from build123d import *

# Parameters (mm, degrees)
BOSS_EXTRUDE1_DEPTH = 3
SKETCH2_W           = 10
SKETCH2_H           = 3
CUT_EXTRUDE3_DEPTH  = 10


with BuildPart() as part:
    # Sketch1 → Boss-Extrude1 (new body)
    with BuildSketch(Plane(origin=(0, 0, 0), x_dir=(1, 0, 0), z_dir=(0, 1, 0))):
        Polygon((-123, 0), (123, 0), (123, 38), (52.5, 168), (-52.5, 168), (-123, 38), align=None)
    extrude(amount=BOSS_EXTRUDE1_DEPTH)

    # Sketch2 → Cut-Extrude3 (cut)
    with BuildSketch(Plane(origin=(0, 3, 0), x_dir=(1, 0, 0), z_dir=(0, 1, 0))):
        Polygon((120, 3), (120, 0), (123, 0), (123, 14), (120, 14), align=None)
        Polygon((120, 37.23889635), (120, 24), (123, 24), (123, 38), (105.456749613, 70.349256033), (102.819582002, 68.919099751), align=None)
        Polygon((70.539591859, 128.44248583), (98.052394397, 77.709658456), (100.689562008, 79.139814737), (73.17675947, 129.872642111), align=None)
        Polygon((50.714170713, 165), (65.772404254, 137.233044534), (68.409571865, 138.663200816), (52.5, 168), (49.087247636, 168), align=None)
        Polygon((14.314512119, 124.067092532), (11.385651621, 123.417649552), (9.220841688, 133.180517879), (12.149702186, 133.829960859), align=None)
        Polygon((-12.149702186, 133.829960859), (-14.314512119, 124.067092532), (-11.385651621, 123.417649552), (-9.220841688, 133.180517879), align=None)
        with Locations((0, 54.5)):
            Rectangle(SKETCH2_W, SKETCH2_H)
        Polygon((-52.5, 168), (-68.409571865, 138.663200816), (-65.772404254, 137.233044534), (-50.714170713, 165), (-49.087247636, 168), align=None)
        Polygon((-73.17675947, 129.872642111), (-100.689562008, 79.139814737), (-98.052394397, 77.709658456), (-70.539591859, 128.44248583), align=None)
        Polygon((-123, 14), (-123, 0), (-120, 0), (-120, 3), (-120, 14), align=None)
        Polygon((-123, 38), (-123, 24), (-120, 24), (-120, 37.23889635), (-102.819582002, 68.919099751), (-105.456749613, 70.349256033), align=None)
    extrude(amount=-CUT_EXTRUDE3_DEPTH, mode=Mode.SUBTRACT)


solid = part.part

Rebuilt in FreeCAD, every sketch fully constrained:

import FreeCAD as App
import Part
import Sketcher


def add_polygon(sketch, points):
    """Adds a closed chain of lines whose ends are joined by coincident constraints."""
    first, n = sketch.GeometryCount, len(points)
    for a, b in zip(points, points[1:] + points[:1]):
        sketch.addGeometry(Part.LineSegment(App.Vector(*a, 0), App.Vector(*b, 0)), False)
    for i in range(n):
        sketch.addConstraint(Sketcher.Constraint("Coincident", first + i, 2, first + (i + 1) % n, 1))

doc = App.newDocument("Part")
body = doc.addObject("PartDesign::Body", "Body")

# Sketch on XZ plane
sketch1 = body.newObject("Sketcher::SketchObject", "Sketch")
sketch1.AttachmentSupport = (doc.getObject("XZ_Plane"), [""])
sketch1.MapMode = "FlatFace"
add_polygon(sketch1, [(-123, 0), (123, 0), (123, -38), (52, -168), (-52, -168), (-123, -38)])  # lines 0-5
sketch1.addConstraint(Sketcher.Constraint("Horizontal", 0))
sketch1.addConstraint(Sketcher.Constraint("Vertical", 1))
sketch1.addConstraint(Sketcher.Constraint("Horizontal", 3))
sketch1.addConstraint(Sketcher.Constraint("Vertical", 5))
sketch1.addConstraint(Sketcher.Constraint("Symmetric", 0, 2, 5, 2, -1, 1))
sketch1.addConstraint(Sketcher.Constraint("Horizontal", 1, 2, 4, 2))
sketch1.addConstraint(Sketcher.Constraint("Equal", 2, 4))
sketch1.addConstraint(Sketcher.Constraint("DistanceX", 0, 1, 0, 2, 246.0))
sketch1.addConstraint(Sketcher.Constraint("DistanceX", 3, 2, 3, 1, 105.0))
sketch1.addConstraint(Sketcher.Constraint("DistanceY", 1, 2, 1, 1, 38.0))
sketch1.addConstraint(Sketcher.Constraint("DistanceY", 2, 2, -1, 1, 168.0))
pad1 = body.newObject("PartDesign::Pad", "Pad")
pad1.Profile = sketch1
pad1.Length = 3
pad1.Reversed = True

# Sketch on XZ plane
sketch2 = body.newObject("Sketcher::SketchObject", "Sketch001")
sketch2.AttachmentSupport = (doc.getObject("XZ_Plane"), [""])
sketch2.MapMode = "FlatFace"
sketch2.AttachmentOffset = App.Placement(App.Vector(0, 0, -3), App.Rotation())
add_polygon(sketch2, [(120, 0), (123, 0), (123, -14), (120, -14)])  # lines 0-3
add_polygon(sketch2, [(120, -37.2), (120, -24), (123, -24), (123, -38), (105.5, -70.3), (102.8, -68.9)])  # lines 4-9
add_polygon(sketch2, [(70.5, -128.4), (98.1, -77.7), (100.7, -79.1), (73.2, -129.9)])  # lines 10-13
add_polygon(sketch2, [(50.7, -165), (65.8, -137.2), (68.4, -138.7), (52.5, -168), (49.1, -168)])  # lines 14-18
add_polygon(sketch2, [(11.4, -123.4), (14.3, -124.1), (12.1, -133.8), (9.2, -133.2)])  # lines 19-22
add_polygon(sketch2, [(-12.1, -133.8), (-14.3, -124.1), (-11.4, -123.4), (-9.2, -133.2)])  # lines 23-26
add_polygon(sketch2, [(-5, -56), (-5, -53), (5, -53), (5, -56)])  # lines 27-30
add_polygon(sketch2, [(-52.5, -168), (-68.4, -138.7), (-65.8, -137.2), (-50.7, -165), (-49.1, -168)])  # lines 31-35
add_polygon(sketch2, [(-73.2, -129.9), (-100.7, -79.1), (-98.1, -77.7), (-70.5, -128.4)])  # lines 36-39
add_polygon(sketch2, [(-123, -14), (-123, 0), (-120, 0), (-120, -14)])  # lines 40-43
add_polygon(sketch2, [(-123, -38), (-123, -24), (-120, -24), (-120, -37.2), (-102.8, -68.9), (-105.5, -70.3)])  # lines 44-49
sketch2.addConstraint(Sketcher.Constraint("Horizontal", 0))
sketch2.addConstraint(Sketcher.Constraint("Vertical", 1))
sketch2.addConstraint(Sketcher.Constraint("Horizontal", 2))
sketch2.addConstraint(Sketcher.Constraint("Vertical", 3))
sketch2.addConstraint(Sketcher.Constraint("Vertical", 4))
sketch2.addConstraint(Sketcher.Constraint("Horizontal", 5))
sketch2.addConstraint(Sketcher.Constraint("Vertical", 6))
sketch2.addConstraint(Sketcher.Constraint("Horizontal", 17))
sketch2.addConstraint(Sketcher.Constraint("Vertical", 27))
sketch2.addConstraint(Sketcher.Constraint("Horizontal", 28))
sketch2.addConstraint(Sketcher.Constraint("Vertical", 29))
sketch2.addConstraint(Sketcher.Constraint("Horizontal", 30))
sketch2.addConstraint(Sketcher.Constraint("Horizontal", 35))
sketch2.addConstraint(Sketcher.Constraint("Vertical", 40))
sketch2.addConstraint(Sketcher.Constraint("Horizontal", 41))
sketch2.addConstraint(Sketcher.Constraint("Vertical", 42))
sketch2.addConstraint(Sketcher.Constraint("Horizontal", 43))
sketch2.addConstraint(Sketcher.Constraint("Vertical", 44))
sketch2.addConstraint(Sketcher.Constraint("Horizontal", 45))
sketch2.addConstraint(Sketcher.Constraint("Vertical", 46))
sketch2.addConstraint(Sketcher.Constraint("Symmetric", 0, 2, 40, 2, -1, 1))
sketch2.addConstraint(Sketcher.Constraint("Symmetric", 19, 2, 23, 2, -2))
sketch2.addConstraint(Sketcher.Constraint("Symmetric", 22, 2, 24, 2, -2))
sketch2.addConstraint(Sketcher.Constraint("Symmetric", 21, 2, 25, 2, -2))
sketch2.addConstraint(Sketcher.Constraint("Symmetric", 20, 2, 26, 2, -2))
sketch2.addConstraint(Sketcher.Constraint("Symmetric", 15, 2, 31, 2, -2))
sketch2.addConstraint(Sketcher.Constraint("Symmetric", 14, 2, 32, 2, -2))
sketch2.addConstraint(Sketcher.Constraint("Symmetric", 18, 2, 33, 2, -2))
sketch2.addConstraint(Sketcher.Constraint("Symmetric", 17, 2, 34, 2, -2))
sketch2.addConstraint(Sketcher.Constraint("Symmetric", 11, 2, 36, 2, -2))
sketch2.addConstraint(Sketcher.Constraint("Symmetric", 10, 2, 37, 2, -2))
sketch2.addConstraint(Sketcher.Constraint("Symmetric", 13, 2, 38, 2, -2))
sketch2.addConstraint(Sketcher.Constraint("Symmetric", 12, 2, 39, 2, -2))
sketch2.addConstraint(Sketcher.Constraint("Symmetric", 3, 2, 41, 2, -2))
sketch2.addConstraint(Sketcher.Constraint("Symmetric", 5, 2, 44, 2, -2))
sketch2.addConstraint(Sketcher.Constraint("Symmetric", 9, 2, 46, 2, -2))
sketch2.addConstraint(Sketcher.Constraint("Symmetric", 8, 2, 47, 2, -2))
sketch2.addConstraint(Sketcher.Constraint("Symmetric", 7, 2, 48, 2, -2))
sketch2.addConstraint(Sketcher.Constraint("Perpendicular", 7, 8))
sketch2.addConstraint(Sketcher.Constraint("Perpendicular", 8, 9))
sketch2.addConstraint(Sketcher.Constraint("Parallel", 9, 10))
sketch2.addConstraint(Sketcher.Constraint("Perpendicular", 10, 11))
sketch2.addConstraint(Sketcher.Constraint("Perpendicular", 11, 12))
sketch2.addConstraint(Sketcher.Constraint("Perpendicular", 12, 13))
sketch2.addConstraint(Sketcher.Constraint("Perpendicular", 13, 14))
sketch2.addConstraint(Sketcher.Constraint("Perpendicular", 14, 15))
sketch2.addConstraint(Sketcher.Constraint("Perpendicular", 15, 16))
sketch2.addConstraint(Sketcher.Constraint("Parallel", 16, 18))
sketch2.addConstraint(Sketcher.Constraint("Perpendicular", 19, 20))
sketch2.addConstraint(Sketcher.Constraint("Perpendicular", 20, 21))
sketch2.addConstraint(Sketcher.Constraint("Perpendicular", 21, 22))
sketch2.addConstraint(Sketcher.Constraint("Perpendicular", 31, 32))
sketch2.addConstraint(Sketcher.Constraint("Perpendicular", 48, 49))
sketch2.addConstraint(Sketcher.Constraint("Horizontal", 2, 2, 42, 2))
sketch2.addConstraint(Sketcher.Constraint("Vertical", 3, 2, 4, 2))
sketch2.addConstraint(Sketcher.Constraint("Vertical", 1, 2, 5, 2))
sketch2.addConstraint(Sketcher.Constraint("Equal", 3, 6))
sketch2.addConstraint(Sketcher.Constraint("Equal", 45, 27))
sketch2.addConstraint(Sketcher.Constraint("Equal", 8, 11))
sketch2.addConstraint(Sketcher.Constraint("Equal", 13, 15))
sketch2.addConstraint(Sketcher.Constraint("Equal", 15, 19))
sketch2.addConstraint(Sketcher.Constraint("DistanceX", 0, 1, 0, 2, 3.0))
sketch2.addConstraint(Sketcher.Constraint("DistanceX", 28, 1, 28, 2, 10.0))
sketch2.addConstraint(Sketcher.Constraint("DistanceY", 1, 2, 1, 1, 14.0))
sketch2.addConstraint(Sketcher.Constraint("Distance", 8, 3.0))
sketch2.addConstraint(Sketcher.Constraint("Distance", 20, 10.0))
sketch2.addConstraint(Sketcher.Constraint("DistanceX", -1, 1, 0, 2, 123.0))
sketch2.addConstraint(Sketcher.Constraint("DistanceY", 4, 2, -1, 1, 24.0))
sketch2.addConstraint(Sketcher.Constraint("DistanceY", 16, 2, -1, 1, 168.0))
sketch2.addConstraint(Sketcher.Constraint("DistanceY", 18, 2, -1, 1, 165.0))
sketch2.addConstraint(Sketcher.Constraint("DistanceX", 27, 2, -1, 1, 5.0))
sketch2.addConstraint(Sketcher.Constraint("DistanceY", 27, 2, -1, 1, 53.0))
sketch2.addConstraint(Sketcher.Constraint("Distance", 7, 36.8))
sketch2.addConstraint(Sketcher.Constraint("DistanceX", -1, 1, 16, 2, 52.5))
sketch2.addConstraint(Sketcher.Constraint("DistanceY", 8, 2, -1, 1, 68.9191))
sketch2.addConstraint(Sketcher.Constraint("DistanceY", 15, 2, -1, 1, 138.663201))
sketch2.addConstraint(Sketcher.Constraint("Distance", 10, 57.712859))
sketch2.addConstraint(Sketcher.Constraint("DistanceY", 10, 2, -1, 1, 77.709658))
sketch2.addConstraint(Sketcher.Constraint("DistanceX", -1, 1, 12, 2, 73.176759))
sketch2.addConstraint(Sketcher.Constraint("DistanceY", 20, 2, -1, 1, 133.829961))
sketch2.addConstraint(Sketcher.Constraint("DistanceX", -1, 1, 21, 2, 9.220842))
sketch2.addConstraint(Sketcher.Constraint("DistanceX", -1, 1, 22, 2, 11.385652))
pocket1 = body.newObject("PartDesign::Pocket", "Pocket")
pocket1.Profile = sketch2
pocket1.Length = 10
pocket1.Reversed = True

doc.recompute()
